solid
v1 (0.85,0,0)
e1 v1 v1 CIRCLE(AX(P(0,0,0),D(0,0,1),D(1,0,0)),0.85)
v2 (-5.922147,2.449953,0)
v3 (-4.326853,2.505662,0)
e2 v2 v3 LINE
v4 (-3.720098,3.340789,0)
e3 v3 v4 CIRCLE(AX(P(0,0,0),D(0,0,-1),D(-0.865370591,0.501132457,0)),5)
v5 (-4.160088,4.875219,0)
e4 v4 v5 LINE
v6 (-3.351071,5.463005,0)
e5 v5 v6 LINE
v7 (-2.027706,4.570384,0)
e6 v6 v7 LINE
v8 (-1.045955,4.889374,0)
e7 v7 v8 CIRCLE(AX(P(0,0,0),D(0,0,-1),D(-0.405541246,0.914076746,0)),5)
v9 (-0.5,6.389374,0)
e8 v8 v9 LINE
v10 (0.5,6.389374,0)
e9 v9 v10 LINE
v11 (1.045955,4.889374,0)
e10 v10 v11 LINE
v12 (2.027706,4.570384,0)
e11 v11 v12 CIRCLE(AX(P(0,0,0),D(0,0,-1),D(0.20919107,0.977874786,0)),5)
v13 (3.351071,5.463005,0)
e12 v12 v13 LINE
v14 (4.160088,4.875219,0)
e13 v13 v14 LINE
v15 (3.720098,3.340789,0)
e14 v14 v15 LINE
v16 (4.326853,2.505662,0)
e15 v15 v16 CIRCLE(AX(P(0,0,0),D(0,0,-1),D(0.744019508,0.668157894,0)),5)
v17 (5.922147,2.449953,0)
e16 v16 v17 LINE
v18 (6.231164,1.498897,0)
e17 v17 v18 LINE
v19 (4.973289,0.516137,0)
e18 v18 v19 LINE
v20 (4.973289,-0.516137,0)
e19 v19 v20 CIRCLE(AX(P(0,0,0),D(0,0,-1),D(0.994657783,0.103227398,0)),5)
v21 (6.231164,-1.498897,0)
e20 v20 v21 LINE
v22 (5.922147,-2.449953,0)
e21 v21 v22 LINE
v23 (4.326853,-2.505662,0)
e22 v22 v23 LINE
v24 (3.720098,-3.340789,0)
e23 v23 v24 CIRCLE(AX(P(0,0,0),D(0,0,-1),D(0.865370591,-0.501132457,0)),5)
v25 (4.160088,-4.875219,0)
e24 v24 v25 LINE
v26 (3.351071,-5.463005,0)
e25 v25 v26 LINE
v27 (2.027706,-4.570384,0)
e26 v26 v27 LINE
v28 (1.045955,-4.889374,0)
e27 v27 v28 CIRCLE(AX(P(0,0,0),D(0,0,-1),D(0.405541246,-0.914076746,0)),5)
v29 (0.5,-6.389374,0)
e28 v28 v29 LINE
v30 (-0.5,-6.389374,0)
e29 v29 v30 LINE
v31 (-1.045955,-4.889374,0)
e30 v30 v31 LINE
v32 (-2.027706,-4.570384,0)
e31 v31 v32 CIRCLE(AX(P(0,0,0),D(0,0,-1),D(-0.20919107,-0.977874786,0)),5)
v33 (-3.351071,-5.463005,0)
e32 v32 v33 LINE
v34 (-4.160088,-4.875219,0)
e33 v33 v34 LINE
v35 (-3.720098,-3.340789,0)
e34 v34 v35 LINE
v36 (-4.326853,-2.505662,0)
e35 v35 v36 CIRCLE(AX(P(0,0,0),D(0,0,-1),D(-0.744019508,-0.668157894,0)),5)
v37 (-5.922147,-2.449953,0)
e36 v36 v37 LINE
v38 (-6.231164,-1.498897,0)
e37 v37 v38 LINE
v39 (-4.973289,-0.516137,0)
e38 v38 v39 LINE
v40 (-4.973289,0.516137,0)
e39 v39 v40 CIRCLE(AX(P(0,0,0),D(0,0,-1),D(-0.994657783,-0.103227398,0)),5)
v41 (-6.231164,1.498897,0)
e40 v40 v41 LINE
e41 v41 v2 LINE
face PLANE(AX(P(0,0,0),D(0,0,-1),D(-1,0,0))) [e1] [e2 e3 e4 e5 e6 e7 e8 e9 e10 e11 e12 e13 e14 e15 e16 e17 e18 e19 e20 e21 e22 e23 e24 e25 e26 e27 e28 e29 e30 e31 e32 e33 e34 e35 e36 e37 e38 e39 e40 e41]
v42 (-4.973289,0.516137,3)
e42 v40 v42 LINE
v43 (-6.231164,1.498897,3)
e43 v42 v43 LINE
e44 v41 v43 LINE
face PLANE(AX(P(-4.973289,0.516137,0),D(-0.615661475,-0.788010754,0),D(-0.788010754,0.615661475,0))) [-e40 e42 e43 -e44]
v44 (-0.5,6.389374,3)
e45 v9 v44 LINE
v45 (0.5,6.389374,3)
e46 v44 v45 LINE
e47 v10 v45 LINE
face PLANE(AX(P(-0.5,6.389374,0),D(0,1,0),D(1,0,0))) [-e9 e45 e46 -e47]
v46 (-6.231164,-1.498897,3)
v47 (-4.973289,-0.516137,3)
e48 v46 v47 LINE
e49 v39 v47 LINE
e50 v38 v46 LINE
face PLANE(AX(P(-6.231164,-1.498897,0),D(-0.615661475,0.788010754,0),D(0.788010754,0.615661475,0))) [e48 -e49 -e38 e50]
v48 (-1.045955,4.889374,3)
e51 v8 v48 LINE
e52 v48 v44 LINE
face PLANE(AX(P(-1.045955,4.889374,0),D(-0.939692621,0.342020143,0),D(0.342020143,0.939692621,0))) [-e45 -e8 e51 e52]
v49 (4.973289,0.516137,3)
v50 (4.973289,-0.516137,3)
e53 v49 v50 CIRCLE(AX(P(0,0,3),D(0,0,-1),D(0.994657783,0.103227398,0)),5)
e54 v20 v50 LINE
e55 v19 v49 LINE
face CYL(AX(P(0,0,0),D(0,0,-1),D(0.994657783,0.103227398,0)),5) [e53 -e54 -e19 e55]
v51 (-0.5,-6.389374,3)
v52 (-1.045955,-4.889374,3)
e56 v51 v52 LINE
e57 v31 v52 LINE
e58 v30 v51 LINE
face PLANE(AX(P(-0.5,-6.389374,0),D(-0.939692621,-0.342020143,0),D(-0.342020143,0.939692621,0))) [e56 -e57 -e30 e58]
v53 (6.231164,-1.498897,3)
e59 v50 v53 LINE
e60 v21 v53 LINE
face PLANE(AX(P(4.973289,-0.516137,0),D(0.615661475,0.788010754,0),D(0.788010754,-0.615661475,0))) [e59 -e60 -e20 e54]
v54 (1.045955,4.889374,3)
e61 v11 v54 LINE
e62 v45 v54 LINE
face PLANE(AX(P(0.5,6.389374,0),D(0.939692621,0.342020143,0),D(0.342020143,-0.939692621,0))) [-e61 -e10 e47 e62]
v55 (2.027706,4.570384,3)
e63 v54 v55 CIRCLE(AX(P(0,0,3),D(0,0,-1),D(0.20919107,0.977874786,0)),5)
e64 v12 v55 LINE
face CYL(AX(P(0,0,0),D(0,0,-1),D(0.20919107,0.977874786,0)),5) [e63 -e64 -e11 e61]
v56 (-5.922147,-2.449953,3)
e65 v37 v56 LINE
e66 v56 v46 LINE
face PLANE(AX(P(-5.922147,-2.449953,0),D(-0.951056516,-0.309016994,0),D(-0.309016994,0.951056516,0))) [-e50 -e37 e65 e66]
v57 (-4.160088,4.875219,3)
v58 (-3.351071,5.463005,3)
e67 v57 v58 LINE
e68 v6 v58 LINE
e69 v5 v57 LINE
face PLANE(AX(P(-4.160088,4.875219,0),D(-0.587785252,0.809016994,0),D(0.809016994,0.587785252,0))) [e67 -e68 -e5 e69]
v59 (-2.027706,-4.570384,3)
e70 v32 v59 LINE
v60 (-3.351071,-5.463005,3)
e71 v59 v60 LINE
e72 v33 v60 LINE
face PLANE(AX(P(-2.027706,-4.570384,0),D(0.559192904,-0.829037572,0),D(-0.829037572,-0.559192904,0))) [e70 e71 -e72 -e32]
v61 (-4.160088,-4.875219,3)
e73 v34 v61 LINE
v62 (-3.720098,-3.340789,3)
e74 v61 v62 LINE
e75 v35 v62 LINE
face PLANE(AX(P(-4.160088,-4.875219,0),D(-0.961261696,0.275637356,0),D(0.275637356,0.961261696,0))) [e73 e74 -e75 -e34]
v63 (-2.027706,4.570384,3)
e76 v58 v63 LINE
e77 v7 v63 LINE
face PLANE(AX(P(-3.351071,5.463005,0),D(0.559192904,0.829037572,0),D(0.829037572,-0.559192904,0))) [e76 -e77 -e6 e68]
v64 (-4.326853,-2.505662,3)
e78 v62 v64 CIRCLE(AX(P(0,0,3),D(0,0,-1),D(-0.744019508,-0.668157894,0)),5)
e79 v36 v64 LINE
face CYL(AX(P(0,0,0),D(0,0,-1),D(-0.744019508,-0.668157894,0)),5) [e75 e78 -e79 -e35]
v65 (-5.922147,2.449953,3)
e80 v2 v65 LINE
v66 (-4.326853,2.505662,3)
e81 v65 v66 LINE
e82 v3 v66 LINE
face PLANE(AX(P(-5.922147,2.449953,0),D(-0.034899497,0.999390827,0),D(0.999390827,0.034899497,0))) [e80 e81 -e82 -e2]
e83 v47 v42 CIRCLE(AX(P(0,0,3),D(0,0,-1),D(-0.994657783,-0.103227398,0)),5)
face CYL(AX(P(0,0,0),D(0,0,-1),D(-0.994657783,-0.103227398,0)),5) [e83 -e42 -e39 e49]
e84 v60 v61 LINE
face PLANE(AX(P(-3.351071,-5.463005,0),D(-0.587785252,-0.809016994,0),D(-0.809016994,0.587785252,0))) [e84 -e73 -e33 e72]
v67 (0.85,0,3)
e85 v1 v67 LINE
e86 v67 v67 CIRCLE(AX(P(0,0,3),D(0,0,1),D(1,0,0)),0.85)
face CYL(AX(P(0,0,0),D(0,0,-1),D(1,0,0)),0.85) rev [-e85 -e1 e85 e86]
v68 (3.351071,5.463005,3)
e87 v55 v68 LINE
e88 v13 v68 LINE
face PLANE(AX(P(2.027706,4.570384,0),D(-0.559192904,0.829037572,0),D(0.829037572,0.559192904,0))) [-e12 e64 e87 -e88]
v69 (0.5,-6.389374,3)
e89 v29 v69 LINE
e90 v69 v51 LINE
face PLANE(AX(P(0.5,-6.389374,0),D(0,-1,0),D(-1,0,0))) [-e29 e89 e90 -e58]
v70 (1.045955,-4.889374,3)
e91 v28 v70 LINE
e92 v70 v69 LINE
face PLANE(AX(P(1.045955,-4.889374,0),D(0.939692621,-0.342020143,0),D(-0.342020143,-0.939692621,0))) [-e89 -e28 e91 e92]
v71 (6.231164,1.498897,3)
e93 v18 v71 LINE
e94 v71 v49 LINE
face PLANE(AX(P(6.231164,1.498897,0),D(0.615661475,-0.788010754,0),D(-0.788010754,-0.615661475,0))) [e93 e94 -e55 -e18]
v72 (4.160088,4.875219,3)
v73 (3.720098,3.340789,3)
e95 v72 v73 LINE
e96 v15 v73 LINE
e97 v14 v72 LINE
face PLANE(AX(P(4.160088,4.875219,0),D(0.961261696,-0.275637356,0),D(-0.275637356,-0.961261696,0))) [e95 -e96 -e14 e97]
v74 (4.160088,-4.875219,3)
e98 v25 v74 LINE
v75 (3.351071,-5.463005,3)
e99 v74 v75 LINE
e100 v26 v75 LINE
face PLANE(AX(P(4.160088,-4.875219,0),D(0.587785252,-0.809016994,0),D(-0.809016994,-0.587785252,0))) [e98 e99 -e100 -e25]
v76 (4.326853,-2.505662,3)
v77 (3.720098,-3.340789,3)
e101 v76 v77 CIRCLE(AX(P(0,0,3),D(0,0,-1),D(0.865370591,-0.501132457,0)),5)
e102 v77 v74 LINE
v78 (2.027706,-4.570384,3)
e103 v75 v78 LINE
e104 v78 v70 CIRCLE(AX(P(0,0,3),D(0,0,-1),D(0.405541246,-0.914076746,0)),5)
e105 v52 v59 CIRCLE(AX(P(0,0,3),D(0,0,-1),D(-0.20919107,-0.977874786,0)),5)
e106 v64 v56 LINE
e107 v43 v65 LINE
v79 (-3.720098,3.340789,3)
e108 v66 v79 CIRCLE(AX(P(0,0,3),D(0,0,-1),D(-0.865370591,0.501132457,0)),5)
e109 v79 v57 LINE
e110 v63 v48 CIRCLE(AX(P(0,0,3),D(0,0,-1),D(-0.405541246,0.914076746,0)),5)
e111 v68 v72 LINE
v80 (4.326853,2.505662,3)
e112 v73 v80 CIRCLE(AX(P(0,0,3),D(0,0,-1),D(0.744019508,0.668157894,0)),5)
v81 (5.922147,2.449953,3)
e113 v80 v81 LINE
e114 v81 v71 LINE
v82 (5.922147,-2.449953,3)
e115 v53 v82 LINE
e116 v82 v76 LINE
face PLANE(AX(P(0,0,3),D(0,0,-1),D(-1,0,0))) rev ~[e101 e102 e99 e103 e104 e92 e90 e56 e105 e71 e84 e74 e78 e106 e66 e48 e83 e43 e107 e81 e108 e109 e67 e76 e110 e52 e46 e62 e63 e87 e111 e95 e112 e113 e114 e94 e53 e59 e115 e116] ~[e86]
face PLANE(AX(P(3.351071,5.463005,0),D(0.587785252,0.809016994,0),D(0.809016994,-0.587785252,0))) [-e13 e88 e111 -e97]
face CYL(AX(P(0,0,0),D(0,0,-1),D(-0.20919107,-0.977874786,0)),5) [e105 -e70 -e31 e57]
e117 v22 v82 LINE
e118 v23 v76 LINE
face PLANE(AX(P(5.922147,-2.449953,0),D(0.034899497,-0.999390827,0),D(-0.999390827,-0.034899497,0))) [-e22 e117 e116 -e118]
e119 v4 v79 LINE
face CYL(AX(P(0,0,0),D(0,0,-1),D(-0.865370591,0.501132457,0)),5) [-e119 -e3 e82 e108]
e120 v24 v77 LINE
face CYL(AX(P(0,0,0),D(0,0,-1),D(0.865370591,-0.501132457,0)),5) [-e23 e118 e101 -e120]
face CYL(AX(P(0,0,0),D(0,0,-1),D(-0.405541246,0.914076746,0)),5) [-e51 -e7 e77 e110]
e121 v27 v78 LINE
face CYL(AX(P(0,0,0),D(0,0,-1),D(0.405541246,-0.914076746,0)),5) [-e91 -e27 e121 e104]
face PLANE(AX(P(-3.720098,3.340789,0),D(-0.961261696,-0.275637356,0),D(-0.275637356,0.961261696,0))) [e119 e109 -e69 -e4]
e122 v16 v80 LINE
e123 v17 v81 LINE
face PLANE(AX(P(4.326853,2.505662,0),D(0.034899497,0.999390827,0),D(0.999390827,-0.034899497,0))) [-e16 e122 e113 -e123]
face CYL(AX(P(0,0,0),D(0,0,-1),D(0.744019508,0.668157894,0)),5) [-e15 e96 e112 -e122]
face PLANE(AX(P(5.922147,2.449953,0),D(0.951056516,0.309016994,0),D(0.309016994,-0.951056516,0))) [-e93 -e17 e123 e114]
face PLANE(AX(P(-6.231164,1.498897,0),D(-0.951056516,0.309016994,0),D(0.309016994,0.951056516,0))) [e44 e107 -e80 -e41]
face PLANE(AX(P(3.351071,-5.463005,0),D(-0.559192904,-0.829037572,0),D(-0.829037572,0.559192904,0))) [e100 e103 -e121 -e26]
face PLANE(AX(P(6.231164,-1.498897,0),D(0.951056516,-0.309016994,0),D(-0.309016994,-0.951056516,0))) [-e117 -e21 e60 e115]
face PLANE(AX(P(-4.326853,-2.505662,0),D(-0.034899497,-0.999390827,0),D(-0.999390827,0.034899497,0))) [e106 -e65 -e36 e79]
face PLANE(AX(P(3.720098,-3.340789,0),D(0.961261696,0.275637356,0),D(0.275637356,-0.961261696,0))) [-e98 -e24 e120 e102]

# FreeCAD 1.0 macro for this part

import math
import FreeCAD as App
import Part
import Sketcher
from FreeCAD import Vector
Q = App.Units.Quantity

doc = App.newDocument("Part")
body = doc.addObject("PartDesign::Body", "Body")

# Sketch on XY plane
sketch1 = body.newObject("Sketcher::SketchObject", "Sketch")
sketch1.AttachmentSupport = (doc.getObject("XY_Plane"), [""])
sketch1.MapMode = "FlatFace"
sketch1.addGeometry([
    Part.LineSegment(Vector(-0.5, 6.4, 0), Vector(-1, 4.9, 0)),  # 0
    Part.ArcOfCircle(Part.Circle(Vector(0, 0, 0), Vector(0, 0, 1), 5), math.radians(102.07), math.radians(113.93)),  # 1
    Part.LineSegment(Vector(-2, 4.6, 0), Vector(-3.4, 5.5, 0)),  # 2
    Part.LineSegment(Vector(-3.4, 5.5, 0), Vector(-4.2, 4.9, 0)),  # 3
    Part.LineSegment(Vector(-4.2, 4.9, 0), Vector(-3.7, 3.3, 0)),  # 4
    Part.ArcOfCircle(Part.Circle(Vector(0, 0, 0), Vector(0, 0, 1), 5), math.radians(138.07), math.radians(149.93)),  # 5
    Part.LineSegment(Vector(-4.3, 2.5, 0), Vector(-5.9, 2.4, 0)),  # 6
    Part.LineSegment(Vector(-5.9, 2.4, 0), Vector(-6.2, 1.5, 0)),  # 7
    Part.LineSegment(Vector(-6.2, 1.5, 0), Vector(-5, 0.5, 0)),  # 8
    Part.ArcOfCircle(Part.Circle(Vector(0, 0, 0), Vector(0, 0, 1), 5), math.radians(174.07), math.radians(185.93)),  # 9
    Part.LineSegment(Vector(-5, -0.5, 0), Vector(-6.2, -1.5, 0)),  # 10
    Part.LineSegment(Vector(-6.2, -1.5, 0), Vector(-5.9, -2.4, 0)),  # 11
    Part.LineSegment(Vector(-5.9, -2.4, 0), Vector(-4.3, -2.5, 0)),  # 12
    Part.ArcOfCircle(Part.Circle(Vector(0, 0, 0), Vector(0, 0, 1), 5), math.radians(-149.93), math.radians(-138.07)),  # 13
    Part.LineSegment(Vector(-3.7, -3.3, 0), Vector(-4.2, -4.9, 0)),  # 14
    Part.LineSegment(Vector(-4.2, -4.9, 0), Vector(-3.4, -5.5, 0)),  # 15
    Part.LineSegment(Vector(-3.4, -5.5, 0), Vector(-2, -4.6, 0)),  # 16
    Part.ArcOfCircle(Part.Circle(Vector(0, 0, 0), Vector(0, 0, 1), 5), math.radians(-113.93), math.radians(-102.07)),  # 17
    Part.LineSegment(Vector(-1, -4.9, 0), Vector(-0.5, -6.4, 0)),  # 18
    Part.LineSegment(Vector(-0.5, -6.4, 0), Vector(0.5, -6.4, 0)),  # 19
    Part.LineSegment(Vector(0.5, -6.4, 0), Vector(1, -4.9, 0)),  # 20
    Part.ArcOfCircle(Part.Circle(Vector(0, 0, 0), Vector(0, 0, 1), 5), math.radians(-77.93), math.radians(-66.07)),  # 21
    Part.LineSegment(Vector(2, -4.6, 0), Vector(3.4, -5.5, 0)),  # 22
    Part.LineSegment(Vector(3.4, -5.5, 0), Vector(4.2, -4.9, 0)),  # 23
    Part.LineSegment(Vector(4.2, -4.9, 0), Vector(3.7, -3.3, 0)),  # 24
    Part.ArcOfCircle(Part.Circle(Vector(0, 0, 0), Vector(0, 0, 1), 5), math.radians(-41.93), math.radians(-30.07)),  # 25
    Part.LineSegment(Vector(4.3, -2.5, 0), Vector(5.9, -2.4, 0)),  # 26
    Part.LineSegment(Vector(5.9, -2.4, 0), Vector(6.2, -1.5, 0)),  # 27
    Part.LineSegment(Vector(6.2, -1.5, 0), Vector(5, -0.5, 0)),  # 28
    Part.ArcOfCircle(Part.Circle(Vector(0, 0, 0), Vector(0, 0, 1), 5), math.radians(-5.93), math.radians(5.93)),  # 29
    Part.LineSegment(Vector(5, 0.5, 0), Vector(6.2, 1.5, 0)),  # 30
    Part.LineSegment(Vector(6.2, 1.5, 0), Vector(5.9, 2.4, 0)),  # 31
    Part.LineSegment(Vector(5.9, 2.4, 0), Vector(4.3, 2.5, 0)),  # 32
    Part.ArcOfCircle(Part.Circle(Vector(0, 0, 0), Vector(0, 0, 1), 5), math.radians(30.07), math.radians(41.93)),  # 33
    Part.LineSegment(Vector(3.7, 3.3, 0), Vector(4.2, 4.9, 0)),  # 34
    Part.LineSegment(Vector(4.2, 4.9, 0), Vector(3.4, 5.5, 0)),  # 35
    Part.LineSegment(Vector(3.4, 5.5, 0), Vector(2, 4.6, 0)),  # 36
    Part.ArcOfCircle(Part.Circle(Vector(0, 0, 0), Vector(0, 0, 1), 5), math.radians(66.07), math.radians(77.93)),  # 37
    Part.LineSegment(Vector(1, 4.9, 0), Vector(0.5, 6.4, 0)),  # 38
    Part.LineSegment(Vector(0.5, 6.4, 0), Vector(-0.5, 6.4, 0)),  # 39
    Part.Circle(Vector(0, 0, 0), Vector(0, 0, 1), 0.8),  # 40
], False)
sketch1.addConstraint([
    Sketcher.Constraint("Coincident", 0, 2, 1, 1),
    Sketcher.Constraint("Coincident", 1, 2, 2, 1),
    Sketcher.Constraint("Coincident", 2, 2, 3, 1),
    Sketcher.Constraint("Coincident", 3, 2, 4, 1),
    Sketcher.Constraint("Coincident", 4, 2, 5, 1),
    Sketcher.Constraint("Coincident", 5, 2, 6, 1),
    Sketcher.Constraint("Coincident", 6, 2, 7, 1),
    Sketcher.Constraint("Coincident", 7, 2, 8, 1),
    Sketcher.Constraint("Coincident", 8, 2, 9, 1),
    Sketcher.Constraint("Coincident", 9, 2, 10, 1),
    Sketcher.Constraint("Coincident", 10, 2, 11, 1),
    Sketcher.Constraint("Coincident", 11, 2, 12, 1),
    Sketcher.Constraint("Coincident", 12, 2, 13, 1),
    Sketcher.Constraint("Coincident", 13, 2, 14, 1),
    Sketcher.Constraint("Coincident", 14, 2, 15, 1),
    Sketcher.Constraint("Coincident", 15, 2, 16, 1),
    Sketcher.Constraint("Coincident", 16, 2, 17, 1),
    Sketcher.Constraint("Coincident", 17, 2, 18, 1),
    Sketcher.Constraint("Coincident", 18, 2, 19, 1),
    Sketcher.Constraint("Coincident", 19, 2, 20, 1),
    Sketcher.Constraint("Coincident", 20, 2, 21, 1),
    Sketcher.Constraint("Coincident", 21, 2, 22, 1),
    Sketcher.Constraint("Coincident", 22, 2, 23, 1),
    Sketcher.Constraint("Coincident", 23, 2, 24, 1),
    Sketcher.Constraint("Coincident", 24, 2, 25, 1),
    Sketcher.Constraint("Coincident", 25, 2, 26, 1),
    Sketcher.Constraint("Coincident", 26, 2, 27, 1),
    Sketcher.Constraint("Coincident", 27, 2, 28, 1),
    Sketcher.Constraint("Coincident", 28, 2, 29, 1),
    Sketcher.Constraint("Coincident", 29, 2, 30, 1),
    Sketcher.Constraint("Coincident", 30, 2, 31, 1),
    Sketcher.Constraint("Coincident", 31, 2, 32, 1),
    Sketcher.Constraint("Coincident", 32, 2, 33, 1),
    Sketcher.Constraint("Coincident", 33, 2, 34, 1),
    Sketcher.Constraint("Coincident", 34, 2, 35, 1),
    Sketcher.Constraint("Coincident", 35, 2, 36, 1),
    Sketcher.Constraint("Coincident", 36, 2, 37, 1),
    Sketcher.Constraint("Coincident", 37, 2, 38, 1),
    Sketcher.Constraint("Coincident", 38, 2, 39, 1),
    Sketcher.Constraint("Coincident", 39, 2, 0, 1),
    Sketcher.Constraint("Horizontal", 19),
    Sketcher.Constraint("Horizontal", 39),
    Sketcher.Constraint("Coincident", 1, 3, -1, 1),
    Sketcher.Constraint("Coincident", 5, 3, -1, 1),
    Sketcher.Constraint("Coincident", 9, 3, -1, 1),
    Sketcher.Constraint("Coincident", 13, 3, -1, 1),
    Sketcher.Constraint("Coincident", 17, 3, -1, 1),
    Sketcher.Constraint("Coincident", 21, 3, -1, 1),
    Sketcher.Constraint("Coincident", 25, 3, -1, 1),
    Sketcher.Constraint("Coincident", 29, 3, -1, 1),
    Sketcher.Constraint("Coincident", 33, 3, -1, 1),
    Sketcher.Constraint("Coincident", 37, 3, -1, 1),
    Sketcher.Constraint("Coincident", 40, 3, -1, 1),
    Sketcher.Constraint("Equal", 1, 5),
    Sketcher.Constraint("Equal", 5, 9),
    Sketcher.Constraint("Equal", 9, 13),
    Sketcher.Constraint("Equal", 13, 17),
    Sketcher.Constraint("Equal", 17, 21),
    Sketcher.Constraint("Equal", 21, 25),
    Sketcher.Constraint("Equal", 25, 29),
    Sketcher.Constraint("Equal", 29, 33),
    Sketcher.Constraint("Equal", 33, 37),
    Sketcher.Constraint("Symmetric", 2, 2, 22, 2, -1, 1),
    Sketcher.Constraint("Symmetric", 3, 2, 23, 2, -1, 1),
    Sketcher.Constraint("Symmetric", 6, 2, 26, 2, -1, 1),
    Sketcher.Constraint("Symmetric", 7, 2, 27, 2, -1, 1),
    Sketcher.Constraint("Symmetric", 10, 2, 30, 2, -1, 1),
    Sketcher.Constraint("Symmetric", 11, 2, 31, 2, -1, 1),
    Sketcher.Constraint("Symmetric", 14, 2, 34, 2, -1, 1),
    Sketcher.Constraint("Symmetric", 15, 2, 35, 2, -1, 1),
    Sketcher.Constraint("Symmetric", 18, 2, 38, 2, -1, 1),
    Sketcher.Constraint("Symmetric", 15, 2, 22, 2, -2),
    Sketcher.Constraint("Symmetric", 14, 2, 23, 2, -2),
    Sketcher.Constraint("Symmetric", 11, 2, 26, 2, -2),
    Sketcher.Constraint("Symmetric", 10, 2, 27, 2, -2),
    Sketcher.Constraint("Parallel", 0, 20),
    Sketcher.Constraint("Parallel", 2, 22),
    Sketcher.Constraint("Parallel", 4, 24),
    Sketcher.Constraint("Parallel", 6, 26),
    Sketcher.Constraint("Parallel", 8, 28),
    Sketcher.Constraint("Parallel", 10, 30),
    Sketcher.Constraint("Parallel", 12, 32),
    Sketcher.Constraint("Parallel", 14, 34),
    Sketcher.Constraint("Parallel", 16, 36),
    Sketcher.Constraint("Parallel", 18, 38),
    Sketcher.Constraint("Horizontal", 17, 2, 20, 2),
    Sketcher.Constraint("Horizontal", 16, 2, 21, 2),
    Sketcher.Constraint("Horizontal", 13, 2, 24, 2),
    Sketcher.Constraint("Horizontal", 12, 2, 25, 2),
    Sketcher.Constraint("Horizontal", 9, 2, 28, 2),
    Sketcher.Constraint("Horizontal", 0, 2, 37, 2),
    Sketcher.Constraint("Vertical", 19, 2, 38, 2),
    Sketcher.Constraint("Equal", 0, 2),
    Sketcher.Constraint("Equal", 2, 4),
    Sketcher.Constraint("Equal", 4, 6),
    Sketcher.Constraint("Equal", 3, 7),
    Sketcher.Constraint("Equal", 6, 8),
    Sketcher.Constraint("Radius", 1, Q("5 mm")),
    Sketcher.Constraint("Diameter", 40, Q("1.7 mm")),
    Sketcher.Constraint("DistanceX", 19, 1, 19, 2, Q("1 mm")),
    Sketcher.Constraint("Angle", 0, Q("-110 deg")),
    Sketcher.Constraint("Angle", 2, Q("146 deg")),
    Sketcher.Constraint("Angle", 3, Q("-144 deg")),
    Sketcher.Constraint("Angle", 4, Q("-74 deg")),
    Sketcher.Constraint("Angle", 6, Q("-178 deg")),
    Sketcher.Constraint("Angle", 7, Q("-108 deg")),
    Sketcher.Constraint("Angle", 8, Q("-38 deg")),
    Sketcher.Constraint("Distance", 3, Q("1 mm")),
    Sketcher.Constraint("DistanceY", 18, 2, 17, 2, Q("1.5 mm")),
])
pad1 = body.newObject("PartDesign::Pad", "Pad")
pad1.Profile = sketch1
pad1.Length = 3

doc.recompute()
